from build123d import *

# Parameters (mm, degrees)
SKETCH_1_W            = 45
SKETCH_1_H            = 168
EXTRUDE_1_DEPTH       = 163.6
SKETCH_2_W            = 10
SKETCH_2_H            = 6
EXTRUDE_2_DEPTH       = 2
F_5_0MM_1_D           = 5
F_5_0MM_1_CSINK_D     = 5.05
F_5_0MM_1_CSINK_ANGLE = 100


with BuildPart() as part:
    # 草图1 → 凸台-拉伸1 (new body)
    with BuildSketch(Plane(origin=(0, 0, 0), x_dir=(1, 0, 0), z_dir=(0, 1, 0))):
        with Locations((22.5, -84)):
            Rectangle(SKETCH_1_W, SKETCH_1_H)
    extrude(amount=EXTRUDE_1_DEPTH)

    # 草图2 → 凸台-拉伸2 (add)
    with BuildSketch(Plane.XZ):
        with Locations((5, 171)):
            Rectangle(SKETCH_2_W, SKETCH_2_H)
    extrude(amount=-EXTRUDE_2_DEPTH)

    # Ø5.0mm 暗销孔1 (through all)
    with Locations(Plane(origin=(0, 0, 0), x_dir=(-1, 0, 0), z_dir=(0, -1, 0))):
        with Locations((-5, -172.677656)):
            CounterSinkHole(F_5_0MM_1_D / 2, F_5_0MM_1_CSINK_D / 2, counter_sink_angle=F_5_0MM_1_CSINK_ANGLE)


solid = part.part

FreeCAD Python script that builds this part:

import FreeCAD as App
import Part
import Sketcher
Q = App.Units.Quantity


def add_polygon(sketch, points):
    """Adds a closed chain of lines whose ends are joined by coincident constraints."""
    first, n = sketch.GeometryCount, len(points)
    for a, b in zip(points, points[1:] + points[:1]):
        sketch.addGeometry(Part.LineSegment(App.Vector(*a, 0), App.Vector(*b, 0)), False)
    for i in range(n):
        sketch.addConstraint(Sketcher.Constraint("Coincident", first + i, 2, first + (i + 1) % n, 1))

doc = App.newDocument("Part")
body = doc.addObject("PartDesign::Body", "Body")

sketch1 = body.newObject("Sketcher::SketchObject", "Sketch")
sketch1.AttachmentSupport = (doc.getObject("XZ_Plane"), [""])
sketch1.MapMode = "FlatFace"
add_polygon(sketch1, [(0, 0), (0, 168), (45, 168), (45, 0)])
sketch1.addConstraint([
    Sketcher.Constraint("Vertical", 0),
    Sketcher.Constraint("Horizontal", 1),
    Sketcher.Constraint("Vertical", 2),
    Sketcher.Constraint("Horizontal", 3),
    Sketcher.Constraint("Coincident", 3, 2, -1, 1),
    Sketcher.Constraint("DistanceX", 1, 1, 1, 2, Q("45 mm")),
    Sketcher.Constraint("DistanceY", 0, 1, 0, 2, Q("168 mm")),
])
pad1 = body.newObject("PartDesign::Pad", "Pad")
pad1.Profile = sketch1
pad1.Length = 163.6
pad1.Reversed = True

sketch2 = body.newObject("Sketcher::SketchObject", "Sketch001")
sketch2.AttachmentSupport = (doc.getObject("XZ_Plane"), [""])
sketch2.MapMode = "FlatFace"
add_polygon(sketch2, [(0, 174), (0, 168), (10, 168), (10, 174)])
sketch2.addConstraint([
    Sketcher.Constraint("Vertical", 0),
    Sketcher.Constraint("Horizontal", 1),
    Sketcher.Constraint("Vertical", 2),
    Sketcher.Constraint("Horizontal", 3),
    Sketcher.Constraint("PointOnObject", 0, 2, -2),
    Sketcher.Constraint("DistanceX", 1, 1, 1, 2, Q("10 mm")),
    Sketcher.Constraint("DistanceY", 0, 2, 0, 1, Q("6 mm")),
    Sketcher.Constraint("DistanceY", -1, 1, 0, 2, Q("168 mm")),
])
pad2 = body.newObject("PartDesign::Pad", "Pad001")
pad2.Profile = sketch2
pad2.Length = 2
pad2.Reversed = True

sketch3 = body.newObject("Sketcher::SketchObject", "Sketch002")
sketch3.AttachmentSupport = (doc.getObject("XZ_Plane"), [""])
sketch3.MapMode = "FlatFace"
sketch3.addGeometry(Part.Circle(App.Vector(5, 172.677656, 0), App.Vector(0, 0, 1), 2.5), False)
sketch3.addConstraint([
    Sketcher.Constraint("Diameter", 0, Q("5 mm")),
    Sketcher.Constraint("DistanceX", -1, 1, 0, 3, Q("5 mm")),
    Sketcher.Constraint("DistanceY", -1, 1, 0, 3, Q("172.677656 mm")),
])
doc.recompute()
hole = body.newObject("PartDesign::Hole", "Hole")
hole.Profile = sketch3
hole.ThreadType = "None"
hole.Diameter = 5
hole.DepthType = "ThroughAll"
hole.HoleCutType = "Countersink"
hole.HoleCutDiameter = 5.05
hole.HoleCutCountersinkAngle = 100

doc.recompute()
